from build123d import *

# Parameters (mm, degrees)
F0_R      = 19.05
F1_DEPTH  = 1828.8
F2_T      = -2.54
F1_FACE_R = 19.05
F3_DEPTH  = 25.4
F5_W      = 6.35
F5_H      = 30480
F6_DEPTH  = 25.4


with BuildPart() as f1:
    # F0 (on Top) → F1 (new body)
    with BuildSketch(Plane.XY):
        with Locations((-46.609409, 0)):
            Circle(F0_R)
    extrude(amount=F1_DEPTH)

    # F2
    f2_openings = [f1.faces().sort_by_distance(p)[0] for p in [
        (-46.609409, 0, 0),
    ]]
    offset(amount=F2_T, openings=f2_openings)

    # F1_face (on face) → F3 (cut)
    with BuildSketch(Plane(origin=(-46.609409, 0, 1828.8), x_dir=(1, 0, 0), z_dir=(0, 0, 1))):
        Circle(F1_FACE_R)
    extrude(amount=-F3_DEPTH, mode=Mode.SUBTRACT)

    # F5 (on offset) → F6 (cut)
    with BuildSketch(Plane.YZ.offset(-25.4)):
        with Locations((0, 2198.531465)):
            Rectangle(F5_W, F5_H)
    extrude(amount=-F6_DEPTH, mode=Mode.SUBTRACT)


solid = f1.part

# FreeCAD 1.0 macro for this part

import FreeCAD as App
import Part
import Sketcher
from FreeCAD import Vector
Q = App.Units.Quantity


def faces_at(feature, points):
    """Names of the faces that lie closest to the given points."""
    faces = feature.Shape.Faces
    near = lambda p: min(range(len(faces)), key=lambda i: faces[i].distToShape(Part.Vertex(*p))[0])
    return sorted({f"Face{near(p) + 1}" for p in points})


def add_polygon(sketch, points):
    """Adds a closed chain of lines whose ends are joined by coincident constraints."""
    first, n = sketch.GeometryCount, len(points)
    for a, b in zip(points, points[1:] + points[:1]):
        sketch.addGeometry(Part.LineSegment(App.Vector(*a, 0), App.Vector(*b, 0)), False)
    for i in range(n):
        sketch.addConstraint(Sketcher.Constraint("Coincident", first + i, 2, first + (i + 1) % n, 1))

doc = App.newDocument("Part")
params = doc.addObject("Spreadsheet::Sheet", "Params")
for row, (alias, value) in enumerate([
    ("sketch1_diameter", "1.5 in"),
    ("pad1_length", "72 in"),
    ("thickness_wall", "0.1 in"),
    ("sketch2_diameter", "1.5 in"),
    ("pocket1_length", "1 in"),
    ("sketch3_height", "1200 in"),
    ("sketch3_width", "0.25 in"),
    ("pocket2_length", "1 in"),
], start=1):
    params.set(f"A{row}", alias)
    params.set(f"B{row}", "=" + value)
    params.setAlias(f"B{row}", alias)

body = doc.addObject("PartDesign::Body", "Body")

# Sketch on XY plane
sketch1 = body.newObject("Sketcher::SketchObject", "Sketch")
sketch1.AttachmentSupport = (doc.getObject("XY_Plane"), [""])
sketch1.MapMode = "FlatFace"
sketch1.addGeometry(Part.Circle(Vector(-46.609409, 0, 0), Vector(0, 0, 1), 19.05), False)
sketch1.addConstraint([
    Sketcher.Constraint("PointOnObject", 0, 3, -1),
    Sketcher.Constraint("Diameter", 0, Q("1.5 in")),
    Sketcher.Constraint("DistanceX", 0, 3, -1, 1, 46.609409),
])
sketch1.setExpression("Constraints[1]", "Params.sketch1_diameter")
pad1 = body.newObject("PartDesign::Pad", "Pad")
pad1.Profile = sketch1
pad1.setExpression("Length", "Params.pad1_length")
doc.recompute()

thickness = body.newObject("PartDesign::Thickness", "Thickness")
thickness.Base = (pad1, faces_at(pad1, [(-46.609, 0, 0)]))
thickness.setExpression("Value", "Params.thickness_wall")
thickness.Reversed = True
thickness.Join = "Arc"

# Sketch on XY plane
sketch2 = body.newObject("Sketcher::SketchObject", "Sketch001")
sketch2.AttachmentSupport = (doc.getObject("XY_Plane"), [""])
sketch2.MapMode = "FlatFace"
sketch2.AttachmentOffset = App.Placement(Vector(0, 0, 72 * 25.4), App.Rotation())
sketch2.addGeometry(Part.Circle(Vector(-46.609409, 0, 0), Vector(0, 0, 1), 19.05), False)
sketch2.addConstraint([
    Sketcher.Constraint("PointOnObject", 0, 3, -1),
    Sketcher.Constraint("Diameter", 0, Q("1.5 in")),
    Sketcher.Constraint("DistanceX", 0, 3, -1, 1, 46.609409),
])
sketch2.setExpression("Constraints[1]", "Params.sketch2_diameter")
pocket1 = body.newObject("PartDesign::Pocket", "Pocket")
pocket1.Profile = sketch2
pocket1.setExpression("Length", "Params.pocket1_length")

# Sketch on YZ plane
sketch3 = body.newObject("Sketcher::SketchObject", "Sketch002")
sketch3.AttachmentSupport = (doc.getObject("YZ_Plane"), [""])
sketch3.MapMode = "FlatFace"
sketch3.AttachmentOffset = App.Placement(Vector(0, 0, -1 * 25.4), App.Rotation())
add_polygon(sketch3, [(-3.175, 17438.531465), (-3.175, -13041.468535), (3.175, -13041.468535), (3.175, 17438.531465)])  # lines 0-3
sketch3.addConstraint([
    Sketcher.Constraint("Vertical", 0),
    Sketcher.Constraint("Horizontal", 1),
    Sketcher.Constraint("Vertical", 2),
    Sketcher.Constraint("Horizontal", 3),
    Sketcher.Constraint("DistanceY", 0, 2, 0, 1, Q("1200 in")),
    Sketcher.Constraint("DistanceX", 1, 1, 1, 2, Q("0.25 in")),
    Sketcher.Constraint("DistanceX", 0, 2, -1, 1, Q("0.125 in")),
    Sketcher.Constraint("DistanceY", 0, 2, -1, 1, 13041.468535),
])
sketch3.setExpression("Constraints[8]", "Params.sketch3_height")
sketch3.setExpression("Constraints[9]", "Params.sketch3_width")
pocket2 = body.newObject("PartDesign::Pocket", "Pocket001")
pocket2.Profile = sketch3
pocket2.setExpression("Length", "Params.pocket2_length")

doc.recompute()
